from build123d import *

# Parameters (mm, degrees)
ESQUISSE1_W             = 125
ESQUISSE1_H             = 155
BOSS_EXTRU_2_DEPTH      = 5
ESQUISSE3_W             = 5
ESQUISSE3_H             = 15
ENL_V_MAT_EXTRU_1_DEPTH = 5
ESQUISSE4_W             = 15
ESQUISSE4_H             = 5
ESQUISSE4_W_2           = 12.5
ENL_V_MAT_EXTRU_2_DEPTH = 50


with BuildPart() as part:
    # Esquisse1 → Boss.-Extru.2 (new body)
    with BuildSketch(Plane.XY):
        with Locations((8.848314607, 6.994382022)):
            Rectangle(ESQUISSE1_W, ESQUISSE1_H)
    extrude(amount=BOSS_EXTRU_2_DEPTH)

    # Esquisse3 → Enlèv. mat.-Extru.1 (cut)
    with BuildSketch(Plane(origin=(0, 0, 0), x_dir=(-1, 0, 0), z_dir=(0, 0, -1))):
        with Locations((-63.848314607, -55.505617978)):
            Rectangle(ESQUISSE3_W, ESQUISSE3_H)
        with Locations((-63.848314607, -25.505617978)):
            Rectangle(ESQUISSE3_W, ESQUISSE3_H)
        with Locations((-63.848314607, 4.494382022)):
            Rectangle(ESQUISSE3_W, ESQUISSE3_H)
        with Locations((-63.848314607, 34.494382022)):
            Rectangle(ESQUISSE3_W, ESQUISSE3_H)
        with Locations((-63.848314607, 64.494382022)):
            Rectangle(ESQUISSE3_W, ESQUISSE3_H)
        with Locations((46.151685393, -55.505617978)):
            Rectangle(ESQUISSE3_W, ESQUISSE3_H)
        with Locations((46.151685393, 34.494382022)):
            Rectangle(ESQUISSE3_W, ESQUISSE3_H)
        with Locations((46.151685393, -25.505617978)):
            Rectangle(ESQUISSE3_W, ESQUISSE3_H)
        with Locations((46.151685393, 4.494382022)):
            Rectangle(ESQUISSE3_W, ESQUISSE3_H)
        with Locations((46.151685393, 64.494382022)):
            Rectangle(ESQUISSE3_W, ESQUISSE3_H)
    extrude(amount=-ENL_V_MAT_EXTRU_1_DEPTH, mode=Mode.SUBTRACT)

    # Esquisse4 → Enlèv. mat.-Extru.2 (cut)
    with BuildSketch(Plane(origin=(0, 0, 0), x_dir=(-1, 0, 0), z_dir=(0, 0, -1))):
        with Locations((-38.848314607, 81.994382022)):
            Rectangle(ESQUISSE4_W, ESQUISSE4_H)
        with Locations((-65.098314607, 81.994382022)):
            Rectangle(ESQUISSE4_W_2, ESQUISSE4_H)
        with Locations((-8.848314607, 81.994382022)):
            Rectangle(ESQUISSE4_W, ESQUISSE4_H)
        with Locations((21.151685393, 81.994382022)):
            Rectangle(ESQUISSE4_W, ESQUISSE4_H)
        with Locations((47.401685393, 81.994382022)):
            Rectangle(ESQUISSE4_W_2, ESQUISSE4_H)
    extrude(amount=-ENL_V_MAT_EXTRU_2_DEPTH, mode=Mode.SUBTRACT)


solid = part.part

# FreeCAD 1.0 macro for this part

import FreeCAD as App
import Part
import Sketcher
from FreeCAD import Vector

doc = App.newDocument("Part")
body = doc.addObject("PartDesign::Body", "Body")

sketch1 = body.newObject("Sketcher::SketchObject", "Sketch")
sketch1.AttachmentSupport = (doc.getObject("XY_Plane"), [""])
sketch1.MapMode = "FlatFace"
sketch1.addGeometry([
    Part.LineSegment(Vector(-53.651685, 84.494382, 0), Vector(-53.651685, -70.505618, 0)),
    Part.LineSegment(Vector(-53.651685, -70.505618, 0), Vector(71.348315, -70.505618, 0)),
    Part.LineSegment(Vector(71.348315, -70.505618, 0), Vector(71.348315, 84.494382, 0)),
    Part.LineSegment(Vector(71.348315, 84.494382, 0), Vector(-53.651685, 84.494382, 0)),
], False)
sketch1.addConstraint([
    Sketcher.Constraint("Coincident", 0, 2, 1, 1),
    Sketcher.Constraint("Coincident", 1, 2, 2, 1),
    Sketcher.Constraint("Coincident", 2, 2, 3, 1),
    Sketcher.Constraint("Coincident", 3, 2, 0, 1),
    Sketcher.Constraint("Vertical", 0),
    Sketcher.Constraint("Horizontal", 1),
    Sketcher.Constraint("Vertical", 2),
    Sketcher.Constraint("Horizontal", 3),
    Sketcher.Constraint("DistanceX", 1, 1, 1, 2, 125.0),
    Sketcher.Constraint("DistanceY", 0, 2, 0, 1, 155.0),
    Sketcher.Constraint("DistanceX", 0, 2, -1, 1, 53.651685),
    Sketcher.Constraint("DistanceY", 0, 2, -1, 1, 70.505618),
])
pad1 = body.newObject("PartDesign::Pad", "Pad")
pad1.Profile = sketch1
pad1.Length = 5

sketch2 = body.newObject("Sketcher::SketchObject", "Sketch001")
sketch2.AttachmentSupport = (doc.getObject("XY_Plane"), [""])
sketch2.MapMode = "FlatFace"
sketch2.addGeometry([
    Part.LineSegment(Vector(66.348315, -48.005618, 0), Vector(66.348315, -63.005618, 0)),
    Part.LineSegment(Vector(66.348315, -63.005618, 0), Vector(61.348315, -63.005618, 0)),
    Part.LineSegment(Vector(61.348315, -63.005618, 0), Vector(61.348315, -48.005618, 0)),
    Part.LineSegment(Vector(61.348315, -48.005618, 0), Vector(66.348315, -48.005618, 0)),
    Part.LineSegment(Vector(66.348315, -18.005618, 0), Vector(66.348315, -33.005618, 0)),
    Part.LineSegment(Vector(66.348315, -33.005618, 0), Vector(61.348315, -33.005618, 0)),
    Part.LineSegment(Vector(61.348315, -33.005618, 0), Vector(61.348315, -18.005618, 0)),
    Part.LineSegment(Vector(61.348315, -18.005618, 0), Vector(66.348315, -18.005618, 0)),
    Part.LineSegment(Vector(66.348315, 11.994382, 0), Vector(66.348315, -3.005618, 0)),
    Part.LineSegment(Vector(66.348315, -3.005618, 0), Vector(61.348315, -3.005618, 0)),
    Part.LineSegment(Vector(61.348315, -3.005618, 0), Vector(61.348315, 11.994382, 0)),
    Part.LineSegment(Vector(61.348315, 11.994382, 0), Vector(66.348315, 11.994382, 0)),
    Part.LineSegment(Vector(66.348315, 41.994382, 0), Vector(66.348315, 26.994382, 0)),
    Part.LineSegment(Vector(66.348315, 26.994382, 0), Vector(61.348315, 26.994382, 0)),
    Part.LineSegment(Vector(61.348315, 26.994382, 0), Vector(61.348315, 41.994382, 0)),
    Part.LineSegment(Vector(61.348315, 41.994382, 0), Vector(66.348315, 41.994382, 0)),
    Part.LineSegment(Vector(66.348315, 71.994382, 0), Vector(66.348315, 56.994382, 0)),
    Part.LineSegment(Vector(66.348315, 56.994382, 0), Vector(61.348315, 56.994382, 0)),
    Part.LineSegment(Vector(61.348315, 56.994382, 0), Vector(61.348315, 71.994382, 0)),
    Part.LineSegment(Vector(61.348315, 71.994382, 0), Vector(66.348315, 71.994382, 0)),
    Part.LineSegment(Vector(-43.651685, -48.005618, 0), Vector(-43.651685, -63.005618, 0)),
    Part.LineSegment(Vector(-43.651685, -63.005618, 0), Vector(-48.651685, -63.005618, 0)),
    Part.LineSegment(Vector(-48.651685, -63.005618, 0), Vector(-48.651685, -48.005618, 0)),
    Part.LineSegment(Vector(-48.651685, -48.005618, 0), Vector(-43.651685, -48.005618, 0)),
    Part.LineSegment(Vector(-43.651685, 41.994382, 0), Vector(-43.651685, 26.994382, 0)),
    Part.LineSegment(Vector(-43.651685, 26.994382, 0), Vector(-48.651685, 26.994382, 0)),
    Part.LineSegment(Vector(-48.651685, 26.994382, 0), Vector(-48.651685, 41.994382, 0)),
    Part.LineSegment(Vector(-48.651685, 41.994382, 0), Vector(-43.651685, 41.994382, 0)),
    Part.LineSegment(Vector(-43.651685, -18.005618, 0), Vector(-43.651685, -33.005618, 0)),
    Part.LineSegment(Vector(-43.651685, -33.005618, 0), Vector(-48.651685, -33.005618, 0)),
    Part.LineSegment(Vector(-48.651685, -33.005618, 0), Vector(-48.651685, -18.005618, 0)),
    Part.LineSegment(Vector(-48.651685, -18.005618, 0), Vector(-43.651685, -18.005618, 0)),
    Part.LineSegment(Vector(-43.651685, 11.994382, 0), Vector(-43.651685, -3.005618, 0)),
    Part.LineSegment(Vector(-43.651685, -3.005618, 0), Vector(-48.651685, -3.005618, 0)),
    Part.LineSegment(Vector(-48.651685, -3.005618, 0), Vector(-48.651685, 11.994382, 0)),
    Part.LineSegment(Vector(-48.651685, 11.994382, 0), Vector(-43.651685, 11.994382, 0)),
    Part.LineSegment(Vector(-43.651685, 71.994382, 0), Vector(-43.651685, 56.994382, 0)),
    Part.LineSegment(Vector(-43.651685, 56.994382, 0), Vector(-48.651685, 56.994382, 0)),
    Part.LineSegment(Vector(-48.651685, 56.994382, 0), Vector(-48.651685, 71.994382, 0)),
    Part.LineSegment(Vector(-48.651685, 71.994382, 0), Vector(-43.651685, 71.994382, 0)),
], False)
sketch2.addConstraint([
    Sketcher.Constraint("Coincident", 0, 2, 1, 1),
    Sketcher.Constraint("Coincident", 1, 2, 2, 1),
    Sketcher.Constraint("Coincident", 2, 2, 3, 1),
    Sketcher.Constraint("Coincident", 3, 2, 0, 1),
    Sketcher.Constraint("Coincident", 4, 2, 5, 1),
    Sketcher.Constraint("Coincident", 5, 2, 6, 1),
    Sketcher.Constraint("Coincident", 6, 2, 7, 1),
    Sketcher.Constraint("Coincident", 7, 2, 4, 1),
    Sketcher.Constraint("Coincident", 8, 2, 9, 1),
    Sketcher.Constraint("Coincident", 9, 2, 10, 1),
    Sketcher.Constraint("Coincident", 10, 2, 11, 1),
    Sketcher.Constraint("Coincident", 11, 2, 8, 1),
    Sketcher.Constraint("Coincident", 12, 2, 13, 1),
    Sketcher.Constraint("Coincident", 13, 2, 14, 1),
    Sketcher.Constraint("Coincident", 14, 2, 15, 1),
    Sketcher.Constraint("Coincident", 15, 2, 12, 1),
    Sketcher.Constraint("Coincident", 16, 2, 17, 1),
    Sketcher.Constraint("Coincident", 17, 2, 18, 1),
    Sketcher.Constraint("Coincident", 18, 2, 19, 1),
    Sketcher.Constraint("Coincident", 19, 2, 16, 1),
    Sketcher.Constraint("Coincident", 20, 2, 21, 1),
    Sketcher.Constraint("Coincident", 21, 2, 22, 1),
    Sketcher.Constraint("Coincident", 22, 2, 23, 1),
    Sketcher.Constraint("Coincident", 23, 2, 20, 1),
    Sketcher.Constraint("Coincident", 24, 2, 25, 1),
    Sketcher.Constraint("Coincident", 25, 2, 26, 1),
    Sketcher.Constraint("Coincident", 26, 2, 27, 1),
    Sketcher.Constraint("Coincident", 27, 2, 24, 1),
    Sketcher.Constraint("Coincident", 28, 2, 29, 1),
    Sketcher.Constraint("Coincident", 29, 2, 30, 1),
    Sketcher.Constraint("Coincident", 30, 2, 31, 1),
    Sketcher.Constraint("Coincident", 31, 2, 28, 1),
    Sketcher.Constraint("Coincident", 32, 2, 33, 1),
    Sketcher.Constraint("Coincident", 33, 2, 34, 1),
    Sketcher.Constraint("Coincident", 34, 2, 35, 1),
    Sketcher.Constraint("Coincident", 35, 2, 32, 1),
    Sketcher.Constraint("Coincident", 36, 2, 37, 1),
    Sketcher.Constraint("Coincident", 37, 2, 38, 1),
    Sketcher.Constraint("Coincident", 38, 2, 39, 1),
    Sketcher.Constraint("Coincident", 39, 2, 36, 1),
    Sketcher.Constraint("Vertical", 0),
    Sketcher.Constraint("Horizontal", 1),
    Sketcher.Constraint("Vertical", 2),
    Sketcher.Constraint("Horizontal", 3),
    Sketcher.Constraint("Vertical", 4),
    Sketcher.Constraint("Horizontal", 5),
    Sketcher.Constraint("Vertical", 6),
    Sketcher.Constraint("Horizontal", 7),
    Sketcher.Constraint("Vertical", 8),
    Sketcher.Constraint("Horizontal", 9),
    Sketcher.Constraint("Vertical", 10),
    Sketcher.Constraint("Horizontal", 11),
    Sketcher.Constraint("Vertical", 12),
    Sketcher.Constraint("Horizontal", 13),
    Sketcher.Constraint("Vertical", 14),
    Sketcher.Constraint("Horizontal", 15),
    Sketcher.Constraint("Vertical", 16),
    Sketcher.Constraint("Horizontal", 17),
    Sketcher.Constraint("Vertical", 18),
    Sketcher.Constraint("Horizontal", 19),
    Sketcher.Constraint("Vertical", 20),
    Sketcher.Constraint("Horizontal", 21),
    Sketcher.Constraint("Vertical", 22),
    Sketcher.Constraint("Horizontal", 23),
    Sketcher.Constraint("Vertical", 24),
    Sketcher.Constraint("Horizontal", 25),
    Sketcher.Constraint("Vertical", 26),
    Sketcher.Constraint("Horizontal", 27),
    Sketcher.Constraint("Vertical", 28),
    Sketcher.Constraint("Horizontal", 29),
    Sketcher.Constraint("Vertical", 30),
    Sketcher.Constraint("Horizontal", 31),
    Sketcher.Constraint("Vertical", 32),
    Sketcher.Constraint("Horizontal", 33),
    Sketcher.Constraint("Vertical", 34),
    Sketcher.Constraint("Horizontal", 35),
    Sketcher.Constraint("Vertical", 36),
    Sketcher.Constraint("Horizontal", 37),
    Sketcher.Constraint("Vertical", 38),
    Sketcher.Constraint("Horizontal", 39),
    Sketcher.Constraint("Horizontal", 1, 2, 20, 2),
    Sketcher.Constraint("Horizontal", 3, 2, 22, 2),
    Sketcher.Constraint("Horizontal", 13, 2, 24, 2),
    Sketcher.Constraint("Horizontal", 15, 2, 26, 2),
    Sketcher.Constraint("Horizontal", 5, 2, 28, 2),
    Sketcher.Constraint("Horizontal", 7, 2, 30, 2),
    Sketcher.Constraint("Horizontal", 9, 2, 32, 2),
    Sketcher.Constraint("Horizontal", 11, 2, 34, 2),
    Sketcher.Constraint("Horizontal", 17, 2, 36, 2),
    Sketcher.Constraint("Horizontal", 19, 2, 38, 2),
    Sketcher.Constraint("Vertical", 3, 2, 4, 2),
    Sketcher.Constraint("Vertical", 2, 2, 5, 2),
    Sketcher.Constraint("Vertical", 7, 2, 8, 2),
    Sketcher.Constraint("Vertical", 6, 2, 9, 2),
    Sketcher.Constraint("Vertical", 11, 2, 12, 2),
    Sketcher.Constraint("Vertical", 10, 2, 13, 2),
    Sketcher.Constraint("Vertical", 15, 2, 16, 2),
    Sketcher.Constraint("Vertical", 14, 2, 17, 2),
    Sketcher.Constraint("Vertical", 23, 2, 24, 2),
    Sketcher.Constraint("Vertical", 22, 2, 25, 2),
    Sketcher.Constraint("Vertical", 27, 2, 28, 2),
    Sketcher.Constraint("Vertical", 26, 2, 29, 2),
    Sketcher.Constraint("Vertical", 31, 2, 32, 2),
    Sketcher.Constraint("Vertical", 30, 2, 33, 2),
    Sketcher.Constraint("Vertical", 35, 2, 36, 2),
    Sketcher.Constraint("Vertical", 34, 2, 37, 2),
    Sketcher.Constraint("Equal", 19, 21),
    Sketcher.Constraint("Equal", 2, 4),
    Sketcher.Constraint("Equal", 6, 8),
    Sketcher.Constraint("Equal", 10, 12),
    Sketcher.Constraint("Equal", 14, 16),
    Sketcher.Constraint("DistanceX", 1, 2, 1, 1, 5.0),
    Sketcher.Constraint("DistanceY", 0, 2, 0, 1, 15.0),
    Sketcher.Constraint("DistanceY", 3, 2, 4, 2, 15.0),
    Sketcher.Constraint("DistanceY", 7, 2, 8, 2, 15.0),
    Sketcher.Constraint("DistanceY", 11, 2, 12, 2, 15.0),
    Sketcher.Constraint("DistanceY", 15, 2, 16, 2, 15.0),
    Sketcher.Constraint("DistanceX", 20, 2, 1, 2, 105.0),
    Sketcher.Constraint("DistanceX", -1, 1, 0, 2, 66.348315),
    Sketcher.Constraint("DistanceY", 0, 2, -1, 1, 63.005618),
])
pocket1 = body.newObject("PartDesign::Pocket", "Pocket")
pocket1.Profile = sketch2
pocket1.Length = 5
pocket1.Reversed = True

sketch3 = body.newObject("Sketcher::SketchObject", "Sketch002")
sketch3.AttachmentSupport = (doc.getObject("XY_Plane"), [""])
sketch3.MapMode = "FlatFace"
sketch3.addGeometry([
    Part.LineSegment(Vector(46.348315, 84.494382, 0), Vector(46.348315, 79.494382, 0)),
    Part.LineSegment(Vector(46.348315, 79.494382, 0), Vector(31.348315, 79.494382, 0)),
    Part.LineSegment(Vector(31.348315, 79.494382, 0), Vector(31.348315, 84.494382, 0)),
    Part.LineSegment(Vector(31.348315, 84.494382, 0), Vector(46.348315, 84.494382, 0)),
    Part.LineSegment(Vector(71.348315, 84.494382, 0), Vector(71.348315, 79.494382, 0)),
    Part.LineSegment(Vector(71.348315, 79.494382, 0), Vector(58.848315, 79.494382, 0)),
    Part.LineSegment(Vector(58.848315, 79.494382, 0), Vector(58.848315, 84.494382, 0)),
    Part.LineSegment(Vector(58.848315, 84.494382, 0), Vector(71.348315, 84.494382, 0)),
    Part.LineSegment(Vector(16.348315, 84.494382, 0), Vector(16.348315, 79.494382, 0)),
    Part.LineSegment(Vector(16.348315, 79.494382, 0), Vector(1.348315, 79.494382, 0)),
    Part.LineSegment(Vector(1.348315, 79.494382, 0), Vector(1.348315, 84.494382, 0)),
    Part.LineSegment(Vector(1.348315, 84.494382, 0), Vector(16.348315, 84.494382, 0)),
    Part.LineSegment(Vector(-13.651685, 84.494382, 0), Vector(-13.651685, 79.494382, 0)),
    Part.LineSegment(Vector(-13.651685, 79.494382, 0), Vector(-28.651685, 79.494382, 0)),
    Part.LineSegment(Vector(-28.651685, 79.494382, 0), Vector(-28.651685, 84.494382, 0)),
    Part.LineSegment(Vector(-28.651685, 84.494382, 0), Vector(-13.651685, 84.494382, 0)),
    Part.LineSegment(Vector(-41.151685, 84.494382, 0), Vector(-41.151685, 79.494382, 0)),
    Part.LineSegment(Vector(-41.151685, 79.494382, 0), Vector(-53.651685, 79.494382, 0)),
    Part.LineSegment(Vector(-53.651685, 79.494382, 0), Vector(-53.651685, 84.494382, 0)),
    Part.LineSegment(Vector(-53.651685, 84.494382, 0), Vector(-41.151685, 84.494382, 0)),
], False)
sketch3.addConstraint([
    Sketcher.Constraint("Coincident", 0, 2, 1, 1),
    Sketcher.Constraint("Coincident", 1, 2, 2, 1),
    Sketcher.Constraint("Coincident", 2, 2, 3, 1),
    Sketcher.Constraint("Coincident", 3, 2, 0, 1),
    Sketcher.Constraint("Coincident", 4, 2, 5, 1),
    Sketcher.Constraint("Coincident", 5, 2, 6, 1),
    Sketcher.Constraint("Coincident", 6, 2, 7, 1),
    Sketcher.Constraint("Coincident", 7, 2, 4, 1),
    Sketcher.Constraint("Coincident", 8, 2, 9, 1),
    Sketcher.Constraint("Coincident", 9, 2, 10, 1),
    Sketcher.Constraint("Coincident", 10, 2, 11, 1),
    Sketcher.Constraint("Coincident", 11, 2, 8, 1),
    Sketcher.Constraint("Coincident", 12, 2, 13, 1),
    Sketcher.Constraint("Coincident", 13, 2, 14, 1),
    Sketcher.Constraint("Coincident", 14, 2, 15, 1),
    Sketcher.Constraint("Coincident", 15, 2, 12, 1),
    Sketcher.Constraint("Coincident", 16, 2, 17, 1),
    Sketcher.Constraint("Coincident", 17, 2, 18, 1),
    Sketcher.Constraint("Coincident", 18, 2, 19, 1),
    Sketcher.Constraint("Coincident", 19, 2, 16, 1),
    Sketcher.Constraint("Vertical", 0),
    Sketcher.Constraint("Horizontal", 1),
    Sketcher.Constraint("Vertical", 2),
    Sketcher.Constraint("Horizontal", 3),
    Sketcher.Constraint("Vertical", 4),
    Sketcher.Constraint("Horizontal", 5),
    Sketcher.Constraint("Vertical", 6),
    Sketcher.Constraint("Horizontal", 7),
    Sketcher.Constraint("Vertical", 8),
    Sketcher.Constraint("Horizontal", 9),
    Sketcher.Constraint("Vertical", 10),
    Sketcher.Constraint("Horizontal", 11),
    Sketcher.Constraint("Vertical", 12),
    Sketcher.Constraint("Horizontal", 13),
    Sketcher.Constraint("Vertical", 14),
    Sketcher.Constraint("Horizontal", 15),
    Sketcher.Constraint("Vertical", 16),
    Sketcher.Constraint("Horizontal", 17),
    Sketcher.Constraint("Vertical", 18),
    Sketcher.Constraint("Horizontal", 19),
    Sketcher.Constraint("Horizontal", 1, 2, 4, 2),
    Sketcher.Constraint("Horizontal", 3, 2, 6, 2),
    Sketcher.Constraint("Horizontal", 5, 2, 8, 2),
    Sketcher.Constraint("Horizontal", 7, 2, 10, 2),
    Sketcher.Constraint("Horizontal", 9, 2, 12, 2),
    Sketcher.Constraint("Horizontal", 11, 2, 14, 2),
    Sketcher.Constraint("Horizontal", 13, 2, 16, 2),
    Sketcher.Constraint("Horizontal", 15, 2, 18, 2),
    Sketcher.Constraint("Equal", 3, 9),
    Sketcher.Constraint("Equal", 11, 13),
    Sketcher.Constraint("Equal", 7, 17),
    Sketcher.Constraint("DistanceX", 1, 2, 1, 1, 15.0),
    Sketcher.Constraint("DistanceY", 0, 2, 0, 1, 5.0),
    Sketcher.Constraint("DistanceX", 5, 2, 5, 1, 12.5),
    Sketcher.Constraint("DistanceX", 0, 2, 4, 2, 25.0),
    Sketcher.Constraint("DistanceX", 8, 2, 1, 2, 15.0),
    Sketcher.Constraint("DistanceX", 12, 2, 9, 2, 15.0),
    Sketcher.Constraint("DistanceX", 17, 2, 13, 2, 25.0),
    Sketcher.Constraint("DistanceX", -1, 1, 0, 2, 46.348315),
    Sketcher.Constraint("DistanceY", -1, 1, 0, 2, 79.494382),
])
pocket2 = body.newObject("PartDesign::Pocket", "Pocket001")
pocket2.Profile = sketch3
pocket2.Length = 50
pocket2.Reversed = True

doc.recompute()
